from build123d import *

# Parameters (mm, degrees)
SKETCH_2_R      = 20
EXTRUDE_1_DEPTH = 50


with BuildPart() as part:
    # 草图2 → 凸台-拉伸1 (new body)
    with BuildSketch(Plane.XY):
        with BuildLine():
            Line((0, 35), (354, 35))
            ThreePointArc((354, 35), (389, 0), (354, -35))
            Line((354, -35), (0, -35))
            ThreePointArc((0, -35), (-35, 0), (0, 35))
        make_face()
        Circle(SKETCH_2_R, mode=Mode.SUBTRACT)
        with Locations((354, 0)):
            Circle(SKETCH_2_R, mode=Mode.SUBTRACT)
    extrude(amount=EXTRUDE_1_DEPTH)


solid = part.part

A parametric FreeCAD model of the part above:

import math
import FreeCAD as App
import Part
import Sketcher

V = App.Vector

doc = App.newDocument("Part")
body = doc.addObject("PartDesign::Body", "Body")

# Sketch on XY plane
sketch1 = doc.addObject("Sketcher::SketchObject", "Sketch")
body.addObject(sketch1)
sketch1.AttachmentSupport = (doc.XY_Plane, [""])
sketch1.MapMode = "FlatFace"
sketch1.addGeometry([
    Part.LineSegment(V(354, 35, 0), V(0, 35, 0)),  # 0
    Part.ArcOfCircle(Part.Circle(V(0, 0, 0), V(0, 0, 1), 35), math.radians(90), math.radians(270)),  # 1
    Part.LineSegment(V(0, -35, 0), V(354, -35, 0)),  # 2
    Part.ArcOfCircle(Part.Circle(V(354, 0, 0), V(0, 0, 1), 35), math.radians(-90), math.radians(90)),  # 3
    Part.Circle(V(354, 0, 0), V(0, 0, 1), 20),  # 4
    Part.Circle(V(0, 0, 0), V(0, 0, 1), 20),  # 5
], False)
sketch1.addConstraint([
    Sketcher.Constraint("Tangent", 0, 2, 1, 1),
    Sketcher.Constraint("Tangent", 1, 2, 2, 1),
    Sketcher.Constraint("Tangent", 2, 2, 3, 1),
    Sketcher.Constraint("Tangent", 3, 2, 0, 1),
    Sketcher.Constraint("Horizontal", 0),
    Sketcher.Constraint("Horizontal", 2),
    Sketcher.Constraint("Coincident", 1, 3, -1, 1),
    Sketcher.Constraint("Coincident", 5, 3, -1, 1),
    Sketcher.Constraint("Coincident", 4, 3, 3, 3),
    Sketcher.Constraint("Equal", 4, 5),
    Sketcher.Constraint("Diameter", 4, 40.0),
    Sketcher.Constraint("Radius", 1, 35.0),
    Sketcher.Constraint("DistanceX", 0, 2, 0, 1, 354.0),
])
pad1 = doc.addObject("PartDesign::Pad", "Pad")
body.addObject(pad1)
pad1.Profile = sketch1
pad1.Length = 50

doc.recompute()
